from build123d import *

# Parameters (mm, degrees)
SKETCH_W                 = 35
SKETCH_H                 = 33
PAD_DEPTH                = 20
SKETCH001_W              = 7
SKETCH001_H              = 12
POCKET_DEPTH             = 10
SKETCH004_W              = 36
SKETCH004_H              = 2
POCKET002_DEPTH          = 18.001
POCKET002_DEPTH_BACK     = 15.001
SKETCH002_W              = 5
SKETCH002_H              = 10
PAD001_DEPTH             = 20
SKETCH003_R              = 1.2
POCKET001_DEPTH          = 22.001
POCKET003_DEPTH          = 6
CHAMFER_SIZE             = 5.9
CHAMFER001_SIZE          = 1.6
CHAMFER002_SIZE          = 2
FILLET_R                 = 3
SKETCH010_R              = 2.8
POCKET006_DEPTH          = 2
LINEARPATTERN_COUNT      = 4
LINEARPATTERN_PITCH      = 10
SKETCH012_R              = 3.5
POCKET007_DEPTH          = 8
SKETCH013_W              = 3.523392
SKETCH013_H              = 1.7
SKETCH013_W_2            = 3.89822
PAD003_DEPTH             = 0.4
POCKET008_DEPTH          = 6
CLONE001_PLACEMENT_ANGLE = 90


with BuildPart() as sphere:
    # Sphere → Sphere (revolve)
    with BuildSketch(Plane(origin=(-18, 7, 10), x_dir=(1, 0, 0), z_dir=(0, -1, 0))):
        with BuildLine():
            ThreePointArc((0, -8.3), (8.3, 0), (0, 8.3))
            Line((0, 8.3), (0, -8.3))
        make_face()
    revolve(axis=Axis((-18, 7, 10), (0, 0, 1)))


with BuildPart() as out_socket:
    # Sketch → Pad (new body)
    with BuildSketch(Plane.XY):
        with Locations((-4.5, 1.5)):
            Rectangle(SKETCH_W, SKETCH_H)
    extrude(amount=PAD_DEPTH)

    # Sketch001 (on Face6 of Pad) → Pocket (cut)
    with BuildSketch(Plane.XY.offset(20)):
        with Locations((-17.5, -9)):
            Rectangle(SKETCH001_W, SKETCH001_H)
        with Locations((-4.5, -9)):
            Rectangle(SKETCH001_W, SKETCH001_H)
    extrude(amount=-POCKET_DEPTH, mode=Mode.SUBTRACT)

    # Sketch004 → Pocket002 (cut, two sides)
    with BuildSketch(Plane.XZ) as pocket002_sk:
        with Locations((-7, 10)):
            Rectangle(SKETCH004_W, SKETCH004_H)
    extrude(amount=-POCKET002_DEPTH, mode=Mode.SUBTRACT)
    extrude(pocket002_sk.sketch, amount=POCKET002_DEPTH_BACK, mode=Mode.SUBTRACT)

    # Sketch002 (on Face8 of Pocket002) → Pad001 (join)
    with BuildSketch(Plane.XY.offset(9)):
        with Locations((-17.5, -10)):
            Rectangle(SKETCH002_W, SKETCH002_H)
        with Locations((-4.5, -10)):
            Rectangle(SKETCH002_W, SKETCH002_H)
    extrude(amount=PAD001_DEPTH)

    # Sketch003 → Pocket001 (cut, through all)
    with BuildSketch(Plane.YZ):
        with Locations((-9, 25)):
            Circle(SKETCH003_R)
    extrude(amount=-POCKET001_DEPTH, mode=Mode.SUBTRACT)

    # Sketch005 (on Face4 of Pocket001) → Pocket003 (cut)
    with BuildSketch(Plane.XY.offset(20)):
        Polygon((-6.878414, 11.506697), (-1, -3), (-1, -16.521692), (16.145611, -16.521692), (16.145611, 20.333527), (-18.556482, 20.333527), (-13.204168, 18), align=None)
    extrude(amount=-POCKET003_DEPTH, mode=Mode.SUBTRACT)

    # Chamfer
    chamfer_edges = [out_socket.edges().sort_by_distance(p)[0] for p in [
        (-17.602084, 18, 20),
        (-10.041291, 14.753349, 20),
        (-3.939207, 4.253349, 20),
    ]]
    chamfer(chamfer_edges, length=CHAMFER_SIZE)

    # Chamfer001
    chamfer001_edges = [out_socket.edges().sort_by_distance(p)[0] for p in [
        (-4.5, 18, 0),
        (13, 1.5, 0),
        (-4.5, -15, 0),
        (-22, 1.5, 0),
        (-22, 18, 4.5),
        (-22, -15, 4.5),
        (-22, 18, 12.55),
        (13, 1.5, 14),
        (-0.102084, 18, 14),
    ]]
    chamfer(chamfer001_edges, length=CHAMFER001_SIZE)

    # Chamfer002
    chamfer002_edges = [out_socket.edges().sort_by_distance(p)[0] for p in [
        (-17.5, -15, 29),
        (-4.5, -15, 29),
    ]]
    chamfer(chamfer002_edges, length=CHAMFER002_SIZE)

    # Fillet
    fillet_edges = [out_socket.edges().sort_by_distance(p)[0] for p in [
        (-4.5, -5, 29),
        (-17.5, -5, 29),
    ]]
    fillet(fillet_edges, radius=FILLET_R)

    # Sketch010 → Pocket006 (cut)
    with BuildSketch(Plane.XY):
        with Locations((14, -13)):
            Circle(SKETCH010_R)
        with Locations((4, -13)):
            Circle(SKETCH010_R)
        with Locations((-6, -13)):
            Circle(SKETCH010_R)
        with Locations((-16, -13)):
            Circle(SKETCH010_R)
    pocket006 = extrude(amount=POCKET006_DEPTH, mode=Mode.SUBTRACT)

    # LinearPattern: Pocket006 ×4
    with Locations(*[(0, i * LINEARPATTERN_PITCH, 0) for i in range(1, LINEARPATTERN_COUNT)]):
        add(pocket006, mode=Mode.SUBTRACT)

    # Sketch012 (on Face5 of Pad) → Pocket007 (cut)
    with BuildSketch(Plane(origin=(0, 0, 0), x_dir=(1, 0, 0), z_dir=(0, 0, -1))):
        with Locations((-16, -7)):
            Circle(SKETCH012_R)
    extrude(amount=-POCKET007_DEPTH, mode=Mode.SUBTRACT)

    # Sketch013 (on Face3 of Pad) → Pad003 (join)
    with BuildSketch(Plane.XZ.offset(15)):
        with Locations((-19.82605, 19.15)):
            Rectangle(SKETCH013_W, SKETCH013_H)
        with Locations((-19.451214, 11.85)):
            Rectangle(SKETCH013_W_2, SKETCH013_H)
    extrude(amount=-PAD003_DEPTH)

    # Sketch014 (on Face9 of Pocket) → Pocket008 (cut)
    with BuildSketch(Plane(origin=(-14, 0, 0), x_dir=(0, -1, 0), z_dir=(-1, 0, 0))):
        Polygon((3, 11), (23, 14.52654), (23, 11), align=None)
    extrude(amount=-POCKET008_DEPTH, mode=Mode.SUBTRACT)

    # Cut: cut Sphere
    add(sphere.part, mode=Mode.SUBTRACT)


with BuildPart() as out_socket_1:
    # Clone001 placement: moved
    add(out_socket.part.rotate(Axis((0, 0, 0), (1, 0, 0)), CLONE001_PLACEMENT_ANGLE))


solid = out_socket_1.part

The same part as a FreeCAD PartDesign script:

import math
import FreeCAD as App
import Part
import Sketcher

V = App.Vector
Q = App.Units.Quantity


def edges_at(feature, points):
    """Names of the edges that pass closest to the given points."""
    edges = feature.Shape.Edges
    near = lambda p: min(range(len(edges)), key=lambda i: edges[i].distToShape(Part.Vertex(*p))[0])
    return sorted({f"Edge{near(p) + 1}" for p in points})


def add_polygon(sketch, points):
    """Adds a closed chain of lines whose ends are joined by coincident constraints."""
    first, n = sketch.GeometryCount, len(points)
    for a, b in zip(points, points[1:] + points[:1]):
        sketch.addGeometry(Part.LineSegment(App.Vector(*a, 0), App.Vector(*b, 0)), False)
    for i in range(n):
        sketch.addConstraint(Sketcher.Constraint("Coincident", first + i, 2, first + (i + 1) % n, 1))

doc = App.newDocument("Part")
params = doc.addObject("Spreadsheet::Sheet", "Params")
for row, (alias, value) in enumerate([
    ("sketch1_radius", "8.3 mm"),
    ("revolution_angle", "360 deg"),
    ("sketch2_width", "35 mm"),
    ("sketch2_height", "33 mm"),
    ("pad1_length", "20 mm"),
    ("sketch3_width", "7 mm"),
    ("sketch3_height", "12 mm"),
    ("pocket1_length", "10 mm"),
    ("sketch4_width", "36 mm"),
    ("sketch4_height", "2 mm"),
    ("sketch5_width", "5 mm"),
    ("sketch5_height", "10 mm"),
    ("pad2_length", "20 mm"),
    ("sketch6_diameter", "2.4 mm"),
    ("pocket4_length", "6 mm"),
    ("chamfer_size", "5.9 mm"),
    ("chamfer2_size", "1.6 mm"),
    ("chamfer3_size", "2 mm"),
    ("fillet_radius", "3 mm"),
    ("sketch8_diameter", "5.6 mm"),
    ("pocket5_length", "2 mm"),
    ("linearpattern_pitch", "10 mm"),
    ("sketch9_diameter", "7 mm"),
    ("pocket6_length", "8 mm"),
    ("sketch10_height", "1.7 mm"),
    ("pad3_length", "0.4 mm"),
    ("sketch11_width", "20 mm"),
    ("pocket7_length", "6 mm"),
], start=1):
    params.set(f"A{row}", alias)
    params.set(f"B{row}", "=" + value)
    params.setAlias(f"B{row}", alias)

body = doc.addObject("PartDesign::Body", "Body")

# Sketch on XZ plane
sketch1 = body.newObject("Sketcher::SketchObject", "Sketch")
sketch1.AttachmentSupport = (doc.getObject("XZ_Plane"), [""])
sketch1.MapMode = "FlatFace"
sketch1.AttachmentOffset = App.Placement(V(0, 0, -7), App.Rotation())
sketch1.addGeometry([
    Part.ArcOfCircle(Part.Circle(V(-18, 10, 0), V(0, 0, 1), 8.3), math.radians(-90), math.radians(90)),
    Part.LineSegment(V(-18, 18.3, 0), V(-18, 1.7, 0)),
], False)
sketch1.addGeometry(Part.LineSegment(V(-18, 1.7, 0), V(-18, 18.3, 0)), True)  # axis
sketch1.addConstraint([
    Sketcher.Constraint("Coincident", 0, 1, 1, 2),
    Sketcher.Constraint("Coincident", 1, 1, 0, 2),
    Sketcher.Constraint("Vertical", 1),
    Sketcher.Constraint("Vertical", 2),
    Sketcher.Constraint("Coincident", 2, 1, 0, 1),
    Sketcher.Constraint("Equal", 1, 2),
    Sketcher.Constraint("Radius", 0, Q("8.3 mm")),
    Sketcher.Constraint("DistanceX", 0, 3, -1, 1, Q("18 mm")),
    Sketcher.Constraint("DistanceY", -1, 1, 0, 3, Q("10 mm")),
    Sketcher.Constraint("DistanceX", 0, 1, -1, 1, Q("18 mm")),
])
sketch1.setExpression("Constraints[6]", "Params.sketch1_radius")
revolution = body.newObject("PartDesign::Revolution", "Revolution")
revolution.Profile = sketch1
revolution.ReferenceAxis = (sketch1, ["Axis0"])
revolution.setExpression("Angle", "Params.revolution_angle")
body2 = doc.addObject("PartDesign::Body", "Body001")

# Sketch on XY plane
sketch2 = body2.newObject("Sketcher::SketchObject", "Sketch001")
sketch2.AttachmentSupport = (doc.getObject("XY_Plane001"), [""])
sketch2.MapMode = "FlatFace"
add_polygon(sketch2, [(-22, 18), (-22, -15), (13, -15), (13, 18)])  # lines 0-3
sketch2.addConstraint([
    Sketcher.Constraint("Vertical", 0),
    Sketcher.Constraint("Horizontal", 1),
    Sketcher.Constraint("Vertical", 2),
    Sketcher.Constraint("Horizontal", 3),
    Sketcher.Constraint("DistanceX", 1, 1, 1, 2, Q("35 mm")),
    Sketcher.Constraint("DistanceY", 0, 2, 0, 1, Q("33 mm")),
    Sketcher.Constraint("DistanceX", 0, 2, -1, 1, Q("22 mm")),
    Sketcher.Constraint("DistanceY", 0, 2, -1, 1, Q("15 mm")),
])
sketch2.setExpression("Constraints[8]", "Params.sketch2_width")
sketch2.setExpression("Constraints[9]", "Params.sketch2_height")
pad1 = body2.newObject("PartDesign::Pad", "Pad")
pad1.Profile = sketch2
pad1.setExpression("Length", "Params.pad1_length")

# Sketch on XY plane
sketch3 = body2.newObject("Sketcher::SketchObject", "Sketch002")
sketch3.AttachmentSupport = (doc.getObject("XY_Plane001"), [""])
sketch3.MapMode = "FlatFace"
sketch3.AttachmentOffset = App.Placement(V(0, 0, 20), App.Rotation())
add_polygon(sketch3, [(-21, -3), (-21, -15), (-14, -15), (-14, -3)])  # lines 0-3
add_polygon(sketch3, [(-8, -3), (-8, -15), (-1, -15), (-1, -3)])  # lines 4-7
sketch3.addConstraint([
    Sketcher.Constraint("Vertical", 0),
    Sketcher.Constraint("Horizontal", 1),
    Sketcher.Constraint("Vertical", 2),
    Sketcher.Constraint("Horizontal", 3),
    Sketcher.Constraint("Vertical", 4),
    Sketcher.Constraint("Horizontal", 5),
    Sketcher.Constraint("Vertical", 6),
    Sketcher.Constraint("Horizontal", 7),
    Sketcher.Constraint("Horizontal", 1, 2, 4, 2),
    Sketcher.Constraint("Horizontal", 3, 2, 6, 2),
    Sketcher.Constraint("Equal", 3, 5),
    Sketcher.Constraint("DistanceX", 1, 1, 1, 2, Q("7 mm")),
    Sketcher.Constraint("DistanceY", 0, 2, 0, 1, Q("12 mm")),
    Sketcher.Constraint("DistanceX", 0, 2, -1, 1, Q("21 mm")),
    Sketcher.Constraint("DistanceY", 0, 2, -1, 1, Q("15 mm")),
    Sketcher.Constraint("DistanceX", 4, 2, -1, 1, Q("8 mm")),
])
sketch3.setExpression("Constraints[19]", "Params.sketch3_width")
sketch3.setExpression("Constraints[20]", "Params.sketch3_height")
pocket1 = body2.newObject("PartDesign::Pocket", "Pocket")
pocket1.Profile = sketch3
pocket1.setExpression("Length", "Params.pocket1_length")

# Sketch on XZ plane
sketch4 = body2.newObject("Sketcher::SketchObject", "Sketch003")
sketch4.AttachmentSupport = (doc.getObject("XZ_Plane001"), [""])
sketch4.MapMode = "FlatFace"
add_polygon(sketch4, [(-25, 11), (-25, 9), (11, 9), (11, 11)])  # lines 0-3
sketch4.addConstraint([
    Sketcher.Constraint("Vertical", 0),
    Sketcher.Constraint("Horizontal", 1),
    Sketcher.Constraint("Vertical", 2),
    Sketcher.Constraint("Horizontal", 3),
    Sketcher.Constraint("DistanceX", 1, 1, 1, 2, Q("36 mm")),
    Sketcher.Constraint("DistanceY", 0, 2, 0, 1, Q("2 mm")),
    Sketcher.Constraint("DistanceX", 0, 2, -1, 1, Q("25 mm")),
    Sketcher.Constraint("DistanceY", -1, 1, 0, 2, Q("9 mm")),
])
sketch4.setExpression("Constraints[8]", "Params.sketch4_width")
sketch4.setExpression("Constraints[9]", "Params.sketch4_height")
pocket2 = body2.newObject("PartDesign::Pocket", "Pocket001")
pocket2.Profile = sketch4
pocket2.Type = "ThroughAll"
pocket2.Midplane = True

# Sketch on XY plane
sketch5 = body2.newObject("Sketcher::SketchObject", "Sketch004")
sketch5.AttachmentSupport = (doc.getObject("XY_Plane001"), [""])
sketch5.MapMode = "FlatFace"
sketch5.AttachmentOffset = App.Placement(V(0, 0, 9), App.Rotation())
add_polygon(sketch5, [(-20, -5), (-20, -15), (-15, -15), (-15, -5)])  # lines 0-3
add_polygon(sketch5, [(-7, -5), (-7, -15), (-2, -15), (-2, -5)])  # lines 4-7
sketch5.addConstraint([
    Sketcher.Constraint("Vertical", 0),
    Sketcher.Constraint("Horizontal", 1),
    Sketcher.Constraint("Vertical", 2),
    Sketcher.Constraint("Horizontal", 3),
    Sketcher.Constraint("Vertical", 4),
    Sketcher.Constraint("Horizontal", 5),
    Sketcher.Constraint("Vertical", 6),
    Sketcher.Constraint("Horizontal", 7),
    Sketcher.Constraint("Horizontal", 1, 2, 4, 2),
    Sketcher.Constraint("Horizontal", 3, 2, 6, 2),
    Sketcher.Constraint("Equal", 3, 5),
    Sketcher.Constraint("DistanceX", 1, 1, 1, 2, Q("5 mm")),
    Sketcher.Constraint("DistanceY", 0, 2, 0, 1, Q("10 mm")),
    Sketcher.Constraint("DistanceX", 0, 2, -1, 1, Q("20 mm")),
    Sketcher.Constraint("DistanceY", 0, 2, -1, 1, Q("15 mm")),
    Sketcher.Constraint("DistanceX", 4, 2, -1, 1, Q("7 mm")),
])
sketch5.setExpression("Constraints[19]", "Params.sketch5_width")
sketch5.setExpression("Constraints[20]", "Params.sketch5_height")
pad2 = body2.newObject("PartDesign::Pad", "Pad001")
pad2.Profile = sketch5
pad2.setExpression("Length", "Params.pad2_length")

# Sketch on YZ plane
sketch6 = body2.newObject("Sketcher::SketchObject", "Sketch005")
sketch6.AttachmentSupport = (doc.getObject("YZ_Plane001"), [""])
sketch6.MapMode = "FlatFace"
sketch6.addGeometry(Part.Circle(V(-9, 25, 0), V(0, 0, 1), 1.2), False)
sketch6.addConstraint([
    Sketcher.Constraint("Diameter", 0, Q("2.4 mm")),
    Sketcher.Constraint("DistanceX", 0, 3, -1, 1, Q("9 mm")),
    Sketcher.Constraint("DistanceY", -1, 1, 0, 3, Q("25 mm")),
])
sketch6.setExpression("Constraints[0]", "Params.sketch6_diameter")
pocket3 = body2.newObject("PartDesign::Pocket", "Pocket002")
pocket3.Profile = sketch6
pocket3.Type = "ThroughAll"

# Sketch on XY plane
sketch7 = body2.newObject("Sketcher::SketchObject", "Sketch006")
sketch7.AttachmentSupport = (doc.getObject("XY_Plane001"), [""])
sketch7.MapMode = "FlatFace"
sketch7.AttachmentOffset = App.Placement(V(0, 0, 20), App.Rotation())
add_polygon(sketch7, [(-6.878414, 11.506697), (-1, -3), (-1, -16.521692), (16.145611, -16.521692), (16.145611, 20.333527), (-18.556482, 20.333527), (-13.204168, 18)])  # lines 0-6
sketch7.addConstraint([
    Sketcher.Constraint("Vertical", 1),
    Sketcher.Constraint("Horizontal", 2),
    Sketcher.Constraint("Vertical", 3),
    Sketcher.Constraint("Horizontal", 4),
    Sketcher.Constraint("DistanceX", 0, 2, -1, 1, Q("1 mm")),
    Sketcher.Constraint("DistanceY", 0, 2, -1, 1, Q("3 mm")),
    Sketcher.Constraint("DistanceY", -1, 1, 5, 2, Q("18 mm")),
    Sketcher.Constraint("DistanceX", 2, 1, 2, 2, Q("17.145611 mm")),
    Sketcher.Constraint("DistanceY", 3, 1, 3, 2, Q("36.855219 mm")),
    Sketcher.Constraint("Distance", 5, Q("5.838888 mm")),
    Sketcher.Constraint("DistanceX", 4, 2, 4, 1, Q("34.702093 mm")),
    Sketcher.Constraint("DistanceY", 1, 2, 1, 1, Q("13.521692 mm")),
    Sketcher.Constraint("DistanceY", 6, 2, 4, 2, Q("8.82683 mm")),
    Sketcher.Constraint("Distance", 0, Q("15.652476 mm")),
])
pocket4 = body2.newObject("PartDesign::Pocket", "Pocket003")
pocket4.Profile = sketch7
pocket4.setExpression("Length", "Params.pocket4_length")
doc.recompute()

chamfer = body2.newObject("PartDesign::Chamfer", "Chamfer")
chamfer.Base = (pocket4, edges_at(pocket4, [(-17.602, 18, 20), (-10.041, 14.753, 20), (-3.939, 4.253, 20)]))
chamfer.setExpression("Size", "Params.chamfer_size")
doc.recompute()

chamfer2 = body2.newObject("PartDesign::Chamfer", "Chamfer001")
chamfer2.Base = (chamfer, edges_at(chamfer, [
    (-4.5, 18, 0),
    (13, 1.5, 0),
    (-4.5, -15, 0),
    (-22, 1.5, 0),
    (-22, 18, 4.5),
    (-22, -15, 4.5),
    (-22, 18, 12.55),
    (13, 1.5, 14),
    (-0.102, 18, 14),
]))
chamfer2.setExpression("Size", "Params.chamfer2_size")
doc.recompute()

chamfer3 = body2.newObject("PartDesign::Chamfer", "Chamfer002")
chamfer3.Base = (chamfer2, edges_at(chamfer2, [(-17.5, -15, 29), (-4.5, -15, 29)]))
chamfer3.setExpression("Size", "Params.chamfer3_size")
doc.recompute()

fillet = body2.newObject("PartDesign::Fillet", "Fillet")
fillet.Base = (chamfer3, edges_at(chamfer3, [(-4.5, -5, 29), (-17.5, -5, 29)]))
fillet.setExpression("Radius", "Params.fillet_radius")

# Sketch on XY plane
sketch8 = body2.newObject("Sketcher::SketchObject", "Sketch007")
sketch8.AttachmentSupport = (doc.getObject("XY_Plane001"), [""])
sketch8.MapMode = "FlatFace"
sketch8.addGeometry([
    Part.Circle(V(14, -13, 0), V(0, 0, 1), 2.8),
    Part.Circle(V(4, -13, 0), V(0, 0, 1), 2.8),
    Part.Circle(V(-6, -13, 0), V(0, 0, 1), 2.8),
    Part.Circle(V(-16, -13, 0), V(0, 0, 1), 2.8),
], False)
sketch8.addConstraint([
    Sketcher.Constraint("Equal", 0, 1),
    Sketcher.Constraint("Equal", 1, 2),
    Sketcher.Constraint("Equal", 2, 3),
    Sketcher.Constraint("Horizontal", 0, 3, 1, 3),
    Sketcher.Constraint("Horizontal", 1, 3, 2, 3),
    Sketcher.Constraint("Horizontal", 2, 3, 3, 3),
    Sketcher.Constraint("Diameter", 0, Q("5.6 mm")),
    Sketcher.Constraint("DistanceX", -1, 1, 0, 3, Q("14 mm")),
    Sketcher.Constraint("DistanceY", 0, 3, -1, 1, Q("13 mm")),
    Sketcher.Constraint("DistanceX", -1, 1, 1, 3, Q("4 mm")),
    Sketcher.Constraint("DistanceX", 2, 3, -1, 1, Q("6 mm")),
    Sketcher.Constraint("DistanceX", 3, 3, -1, 1, Q("16 mm")),
])
sketch8.setExpression("Constraints[6]", "Params.sketch8_diameter")
pocket5 = body2.newObject("PartDesign::Pocket", "Pocket004")
pocket5.Profile = sketch8
pocket5.setExpression("Length", "Params.pocket5_length")
pocket5.Reversed = True
doc.recompute()

linearpattern = body2.newObject("PartDesign::LinearPattern", "LinearPattern")
linearpattern.Originals = [pocket5]
linearpattern.Direction = (doc.getObject("Y_Axis001"), [""])
linearpattern.Mode = "offset"
linearpattern.setExpression("Offset", "Params.linearpattern_pitch")
linearpattern.Occurrences = 4
body2.Tip = linearpattern

# Sketch on XY plane
sketch9 = body2.newObject("Sketcher::SketchObject", "Sketch008")
sketch9.AttachmentSupport = (doc.getObject("XY_Plane001"), [""])
sketch9.MapMode = "FlatFace"
sketch9.addGeometry(Part.Circle(V(-16, 7, 0), V(0, 0, 1), 3.5), False)
sketch9.addConstraint([
    Sketcher.Constraint("Diameter", 0, Q("7 mm")),
    Sketcher.Constraint("DistanceX", 0, 3, -1, 1, Q("16 mm")),
    Sketcher.Constraint("DistanceY", -1, 1, 0, 3, Q("7 mm")),
])
sketch9.setExpression("Constraints[0]", "Params.sketch9_diameter")
pocket6 = body2.newObject("PartDesign::Pocket", "Pocket005")
pocket6.Profile = sketch9
pocket6.setExpression("Length", "Params.pocket6_length")
pocket6.Reversed = True

# Sketch on XZ plane
sketch10 = body2.newObject("Sketcher::SketchObject", "Sketch009")
sketch10.AttachmentSupport = (doc.getObject("XZ_Plane001"), [""])
sketch10.MapMode = "FlatFace"
sketch10.AttachmentOffset = App.Placement(V(0, 0, 15), App.Rotation())
add_polygon(sketch10, [(-21.587746, 20), (-21.587746, 18.3), (-18.064354, 18.3), (-18.064354, 20)])  # lines 0-3
add_polygon(sketch10, [(-21.400324, 12.7), (-21.400324, 11), (-17.502104, 11), (-17.502104, 12.7)])  # lines 4-7
sketch10.addConstraint([
    Sketcher.Constraint("Vertical", 0),
    Sketcher.Constraint("Horizontal", 1),
    Sketcher.Constraint("Vertical", 2),
    Sketcher.Constraint("Horizontal", 3),
    Sketcher.Constraint("Vertical", 4),
    Sketcher.Constraint("Horizontal", 5),
    Sketcher.Constraint("Vertical", 6),
    Sketcher.Constraint("Horizontal", 7),
    Sketcher.Constraint("Equal", 2, 4),
    Sketcher.Constraint("DistanceY", 0, 2, 0, 1, Q("1.7 mm")),
    Sketcher.Constraint("DistanceY", -1, 1, 2, 2, Q("20 mm")),
    Sketcher.Constraint("DistanceY", -1, 1, 4, 2, Q("11 mm")),
    Sketcher.Constraint("DistanceX", 1, 1, 1, 2, Q("3.523392 mm")),
    Sketcher.Constraint("DistanceX", 5, 1, 5, 2, Q("3.89822 mm")),
    Sketcher.Constraint("DistanceX", 0, 2, 4, 2, Q("0.187422 mm")),
    Sketcher.Constraint("DistanceX", 0, 2, -1, 1, Q("21.587746 mm")),
])
sketch10.setExpression("Constraints[17]", "Params.sketch10_height")
pad3 = body2.newObject("PartDesign::Pad", "Pad002")
pad3.Profile = sketch10
pad3.setExpression("Length", "Params.pad3_length")
pad3.Reversed = True

# Sketch on YZ plane
sketch11 = body2.newObject("Sketcher::SketchObject", "Sketch010")
sketch11.AttachmentSupport = (doc.getObject("YZ_Plane001"), [""])
sketch11.MapMode = "FlatFace"
sketch11.AttachmentOffset = App.Placement(V(0, 0, -14), App.Rotation())
add_polygon(sketch11, [(-23, 14.52654), (-3, 11), (-23, 11)])  # lines 0-2
sketch11.addConstraint([
    Sketcher.Constraint("Horizontal", 1),
    Sketcher.Constraint("Vertical", 2),
    Sketcher.Constraint("DistanceX", 1, 2, 1, 1, Q("20 mm")),
    Sketcher.Constraint("Angle", 0, Q("-10.000001 deg")),
    Sketcher.Constraint("DistanceX", 0, 2, -1, 1, Q("3 mm")),
    Sketcher.Constraint("DistanceY", -1, 1, 0, 2, Q("11 mm")),
])
sketch11.setExpression("Constraints[5]", "Params.sketch11_width")
pocket7 = body2.newObject("PartDesign::Pocket", "Pocket006")
pocket7.Profile = sketch11
pocket7.setExpression("Length", "Params.pocket7_length")
pocket7.Reversed = True
doc.recompute()

boolean = body2.newObject("PartDesign::Boolean", "Boolean")
boolean.Type = "Cut"
boolean.addObjects([body])
body3 = doc.addObject("PartDesign::Body", "Body002")
doc.recompute()

body2.Placement = App.Placement(V(0, 0, 0), App.Rotation(V(1, 0, 0), 90))
boolean2 = body3.newObject("PartDesign::Boolean", "Boolean001")
boolean2.Type = "Fuse"
boolean2.addObjects([body2])

doc.recompute()
